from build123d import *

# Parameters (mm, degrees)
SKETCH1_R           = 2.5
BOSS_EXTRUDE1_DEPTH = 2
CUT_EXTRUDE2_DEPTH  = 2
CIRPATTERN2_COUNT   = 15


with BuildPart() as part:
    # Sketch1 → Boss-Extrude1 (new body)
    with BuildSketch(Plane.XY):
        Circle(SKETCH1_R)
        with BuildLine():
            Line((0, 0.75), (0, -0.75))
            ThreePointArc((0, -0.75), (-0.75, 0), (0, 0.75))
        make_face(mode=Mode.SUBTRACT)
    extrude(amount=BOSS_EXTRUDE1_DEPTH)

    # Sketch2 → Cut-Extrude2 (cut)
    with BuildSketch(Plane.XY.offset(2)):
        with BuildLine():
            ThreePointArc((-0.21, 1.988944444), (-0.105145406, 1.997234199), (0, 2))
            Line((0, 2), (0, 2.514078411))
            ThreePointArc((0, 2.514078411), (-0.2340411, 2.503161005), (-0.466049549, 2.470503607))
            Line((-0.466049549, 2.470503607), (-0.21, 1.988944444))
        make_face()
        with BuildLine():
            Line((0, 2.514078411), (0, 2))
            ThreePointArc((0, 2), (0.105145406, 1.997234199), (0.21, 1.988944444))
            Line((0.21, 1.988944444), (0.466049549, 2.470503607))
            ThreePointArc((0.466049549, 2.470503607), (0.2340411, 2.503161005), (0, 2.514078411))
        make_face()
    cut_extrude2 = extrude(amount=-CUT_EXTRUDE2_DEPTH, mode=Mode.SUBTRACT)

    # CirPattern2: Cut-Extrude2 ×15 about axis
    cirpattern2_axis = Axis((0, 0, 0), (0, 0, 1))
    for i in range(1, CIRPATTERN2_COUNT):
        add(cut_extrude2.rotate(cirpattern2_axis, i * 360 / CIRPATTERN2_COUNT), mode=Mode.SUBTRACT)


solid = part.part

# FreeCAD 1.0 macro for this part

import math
import FreeCAD as App
import Part
import Sketcher
Q = App.Units.Quantity

doc = App.newDocument("Part")
body = doc.addObject("PartDesign::Body", "Body")

# Sketch on XY plane
sketch1 = body.newObject("Sketcher::SketchObject", "Sketch")
sketch1.AttachmentSupport = (doc.getObject("XY_Plane"), [""])
sketch1.MapMode = "FlatFace"
sketch1.addGeometry([
    Part.Circle(App.Vector(0, 0, 0), App.Vector(0, 0, 1), 2.5),
    Part.ArcOfCircle(Part.Circle(App.Vector(0, 0, 0), App.Vector(0, 0, 1), 0.75), math.radians(90), math.radians(270)),
    Part.LineSegment(App.Vector(0, 0.75, 0), App.Vector(0, -0.75, 0)),
], False)
sketch1.addConstraint([
    Sketcher.Constraint("Coincident", 1, 1, 2, 1),
    Sketcher.Constraint("Coincident", 2, 2, 1, 2),
    Sketcher.Constraint("Vertical", 2),
    Sketcher.Constraint("Coincident", 0, 3, -1, 1),
    Sketcher.Constraint("Coincident", 1, 3, -1, 1),
    Sketcher.Constraint("PointOnObject", 1, 1, -2),
    Sketcher.Constraint("Diameter", 0, 5.0),
    Sketcher.Constraint("Radius", 1, 0.75),
])
pad1 = body.newObject("PartDesign::Pad", "Pad")
pad1.Profile = sketch1
pad1.Length = 2

# Sketch on XY plane
sketch2 = body.newObject("Sketcher::SketchObject", "Sketch001")
sketch2.AttachmentSupport = (doc.getObject("XY_Plane"), [""])
sketch2.MapMode = "FlatFace"
sketch2.AttachmentOffset = App.Placement(App.Vector(0, 0, 2), App.Rotation())
sketch2.addGeometry([
    Part.ArcOfCircle(Part.Circle(App.Vector(0, 0, 0), App.Vector(0, 0, 1), 2), math.radians(90), math.radians(96.027167)),  # 0
    Part.ArcOfCircle(Part.Circle(App.Vector(0, 0, 0), App.Vector(0, 0, 1), 2), math.radians(83.972833), math.radians(90)),  # 1
    Part.LineSegment(App.Vector(0.21, 1.988944, 0), App.Vector(0.46605, 2.470504, 0)),  # 2
    Part.ArcOfCircle(Part.Circle(App.Vector(0, 0, 0), App.Vector(0, 0, 1), 2.514079), math.radians(79.316951), math.radians(90)),  # 3
    Part.ArcOfCircle(Part.Circle(App.Vector(0, 0, 0), App.Vector(0, 0, 1), 2.514079), math.radians(90), math.radians(100.683049)),  # 4
    Part.LineSegment(App.Vector(-0.46605, 2.470504, 0), App.Vector(-0.21, 1.988944, 0)),  # 5
], False)
sketch2.addConstraint([
    Sketcher.Constraint("Tangent", 0, 1, 1, 2),
    Sketcher.Constraint("Coincident", 1, 1, 2, 1),
    Sketcher.Constraint("Coincident", 2, 2, 3, 1),
    Sketcher.Constraint("Tangent", 3, 2, 4, 1),
    Sketcher.Constraint("Coincident", 4, 2, 5, 1),
    Sketcher.Constraint("Coincident", 5, 2, 0, 2),
    Sketcher.Constraint("Coincident", 0, 3, -1, 1),
    Sketcher.Constraint("Coincident", 3, 3, -1, 1),
    Sketcher.Constraint("Equal", 0, 1),
    Sketcher.Constraint("Equal", 3, 4),
    Sketcher.Constraint("PointOnObject", 0, 1, -2),
    Sketcher.Constraint("PointOnObject", 3, 2, -2),
    Sketcher.Constraint("Horizontal", 2, 2, 4, 2),
    Sketcher.Constraint("Horizontal", 1, 1, 5, 2),
    Sketcher.Constraint("Radius", 0, 2.0),
    Sketcher.Constraint("Angle", 2, Q("62 deg")),
    Sketcher.Constraint("DistanceX", -1, 1, 1, 1, 0.21),
    Sketcher.Constraint("Radius", 3, 2.514079),
])
pocket1 = body.newObject("PartDesign::Pocket", "Pocket")
pocket1.Profile = sketch2
pocket1.Length = 2
doc.recompute()

polarpattern = body.newObject("PartDesign::PolarPattern", "PolarPattern")
polarpattern.Originals = [pocket1]
polarpattern.Axis = (doc.getObject("Z_Axis"), [""])
polarpattern.Angle = 360
polarpattern.Occurrences = 15
body.Tip = polarpattern

doc.recompute()
